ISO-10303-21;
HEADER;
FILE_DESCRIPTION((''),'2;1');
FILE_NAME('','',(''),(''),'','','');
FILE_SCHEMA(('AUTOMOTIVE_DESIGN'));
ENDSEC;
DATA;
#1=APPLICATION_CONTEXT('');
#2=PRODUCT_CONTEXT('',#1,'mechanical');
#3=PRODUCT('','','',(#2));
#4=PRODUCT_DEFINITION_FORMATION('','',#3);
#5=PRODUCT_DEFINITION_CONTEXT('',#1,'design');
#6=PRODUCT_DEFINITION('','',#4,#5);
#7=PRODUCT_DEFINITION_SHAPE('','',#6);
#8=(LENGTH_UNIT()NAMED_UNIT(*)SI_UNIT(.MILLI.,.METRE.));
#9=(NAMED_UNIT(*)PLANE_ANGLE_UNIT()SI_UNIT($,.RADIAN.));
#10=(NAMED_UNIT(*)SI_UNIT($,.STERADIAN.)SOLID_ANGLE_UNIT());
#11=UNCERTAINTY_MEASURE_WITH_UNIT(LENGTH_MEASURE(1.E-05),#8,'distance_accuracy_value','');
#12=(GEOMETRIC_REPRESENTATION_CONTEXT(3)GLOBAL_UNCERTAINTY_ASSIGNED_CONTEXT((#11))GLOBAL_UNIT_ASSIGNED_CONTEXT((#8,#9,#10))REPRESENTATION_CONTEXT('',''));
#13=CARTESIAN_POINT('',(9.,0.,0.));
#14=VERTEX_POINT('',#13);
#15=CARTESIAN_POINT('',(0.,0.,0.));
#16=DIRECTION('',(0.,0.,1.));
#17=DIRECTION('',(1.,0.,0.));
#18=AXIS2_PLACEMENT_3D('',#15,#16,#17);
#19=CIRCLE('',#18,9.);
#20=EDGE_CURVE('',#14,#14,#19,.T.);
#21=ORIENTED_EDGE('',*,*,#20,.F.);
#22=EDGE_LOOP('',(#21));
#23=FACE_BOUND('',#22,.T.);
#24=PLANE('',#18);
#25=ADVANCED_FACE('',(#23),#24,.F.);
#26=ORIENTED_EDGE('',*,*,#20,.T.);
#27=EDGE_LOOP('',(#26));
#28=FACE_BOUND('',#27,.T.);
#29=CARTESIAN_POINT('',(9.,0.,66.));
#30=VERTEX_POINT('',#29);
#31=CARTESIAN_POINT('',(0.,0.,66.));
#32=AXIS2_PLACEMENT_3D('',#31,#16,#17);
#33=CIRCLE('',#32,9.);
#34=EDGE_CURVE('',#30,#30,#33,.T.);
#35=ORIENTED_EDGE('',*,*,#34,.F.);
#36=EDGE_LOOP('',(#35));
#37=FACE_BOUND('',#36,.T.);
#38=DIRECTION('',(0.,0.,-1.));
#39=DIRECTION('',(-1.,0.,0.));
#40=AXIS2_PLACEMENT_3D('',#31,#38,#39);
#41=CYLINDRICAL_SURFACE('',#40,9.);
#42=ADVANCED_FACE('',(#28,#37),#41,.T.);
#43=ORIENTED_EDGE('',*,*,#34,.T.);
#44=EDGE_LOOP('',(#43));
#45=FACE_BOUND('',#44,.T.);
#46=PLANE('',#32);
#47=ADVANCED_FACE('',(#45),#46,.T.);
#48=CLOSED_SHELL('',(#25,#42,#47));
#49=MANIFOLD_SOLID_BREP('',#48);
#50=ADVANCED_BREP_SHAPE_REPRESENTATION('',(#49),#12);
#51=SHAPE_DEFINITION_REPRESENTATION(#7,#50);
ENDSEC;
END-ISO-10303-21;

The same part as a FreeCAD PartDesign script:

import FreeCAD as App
import Part
import Sketcher

V = App.Vector
Q = App.Units.Quantity

doc = App.newDocument("Part")
body = doc.addObject("PartDesign::Body", "Body")

# Sketch on XY plane
sketch1 = body.newObject("Sketcher::SketchObject", "Sketch")
sketch1.AttachmentSupport = (doc.getObject("XY_Plane"), [""])
sketch1.MapMode = "FlatFace"
sketch1.addGeometry(Part.Circle(V(0, 0, 0), V(0, 0, 1), 9), False)
sketch1.addConstraint([
    Sketcher.Constraint("Coincident", 0, 3, -1, 1),
    Sketcher.Constraint("Diameter", 0, Q("18 mm")),
])
pad1 = body.newObject("PartDesign::Pad", "Pad")
pad1.Profile = sketch1
pad1.Length = 66

doc.recompute()
